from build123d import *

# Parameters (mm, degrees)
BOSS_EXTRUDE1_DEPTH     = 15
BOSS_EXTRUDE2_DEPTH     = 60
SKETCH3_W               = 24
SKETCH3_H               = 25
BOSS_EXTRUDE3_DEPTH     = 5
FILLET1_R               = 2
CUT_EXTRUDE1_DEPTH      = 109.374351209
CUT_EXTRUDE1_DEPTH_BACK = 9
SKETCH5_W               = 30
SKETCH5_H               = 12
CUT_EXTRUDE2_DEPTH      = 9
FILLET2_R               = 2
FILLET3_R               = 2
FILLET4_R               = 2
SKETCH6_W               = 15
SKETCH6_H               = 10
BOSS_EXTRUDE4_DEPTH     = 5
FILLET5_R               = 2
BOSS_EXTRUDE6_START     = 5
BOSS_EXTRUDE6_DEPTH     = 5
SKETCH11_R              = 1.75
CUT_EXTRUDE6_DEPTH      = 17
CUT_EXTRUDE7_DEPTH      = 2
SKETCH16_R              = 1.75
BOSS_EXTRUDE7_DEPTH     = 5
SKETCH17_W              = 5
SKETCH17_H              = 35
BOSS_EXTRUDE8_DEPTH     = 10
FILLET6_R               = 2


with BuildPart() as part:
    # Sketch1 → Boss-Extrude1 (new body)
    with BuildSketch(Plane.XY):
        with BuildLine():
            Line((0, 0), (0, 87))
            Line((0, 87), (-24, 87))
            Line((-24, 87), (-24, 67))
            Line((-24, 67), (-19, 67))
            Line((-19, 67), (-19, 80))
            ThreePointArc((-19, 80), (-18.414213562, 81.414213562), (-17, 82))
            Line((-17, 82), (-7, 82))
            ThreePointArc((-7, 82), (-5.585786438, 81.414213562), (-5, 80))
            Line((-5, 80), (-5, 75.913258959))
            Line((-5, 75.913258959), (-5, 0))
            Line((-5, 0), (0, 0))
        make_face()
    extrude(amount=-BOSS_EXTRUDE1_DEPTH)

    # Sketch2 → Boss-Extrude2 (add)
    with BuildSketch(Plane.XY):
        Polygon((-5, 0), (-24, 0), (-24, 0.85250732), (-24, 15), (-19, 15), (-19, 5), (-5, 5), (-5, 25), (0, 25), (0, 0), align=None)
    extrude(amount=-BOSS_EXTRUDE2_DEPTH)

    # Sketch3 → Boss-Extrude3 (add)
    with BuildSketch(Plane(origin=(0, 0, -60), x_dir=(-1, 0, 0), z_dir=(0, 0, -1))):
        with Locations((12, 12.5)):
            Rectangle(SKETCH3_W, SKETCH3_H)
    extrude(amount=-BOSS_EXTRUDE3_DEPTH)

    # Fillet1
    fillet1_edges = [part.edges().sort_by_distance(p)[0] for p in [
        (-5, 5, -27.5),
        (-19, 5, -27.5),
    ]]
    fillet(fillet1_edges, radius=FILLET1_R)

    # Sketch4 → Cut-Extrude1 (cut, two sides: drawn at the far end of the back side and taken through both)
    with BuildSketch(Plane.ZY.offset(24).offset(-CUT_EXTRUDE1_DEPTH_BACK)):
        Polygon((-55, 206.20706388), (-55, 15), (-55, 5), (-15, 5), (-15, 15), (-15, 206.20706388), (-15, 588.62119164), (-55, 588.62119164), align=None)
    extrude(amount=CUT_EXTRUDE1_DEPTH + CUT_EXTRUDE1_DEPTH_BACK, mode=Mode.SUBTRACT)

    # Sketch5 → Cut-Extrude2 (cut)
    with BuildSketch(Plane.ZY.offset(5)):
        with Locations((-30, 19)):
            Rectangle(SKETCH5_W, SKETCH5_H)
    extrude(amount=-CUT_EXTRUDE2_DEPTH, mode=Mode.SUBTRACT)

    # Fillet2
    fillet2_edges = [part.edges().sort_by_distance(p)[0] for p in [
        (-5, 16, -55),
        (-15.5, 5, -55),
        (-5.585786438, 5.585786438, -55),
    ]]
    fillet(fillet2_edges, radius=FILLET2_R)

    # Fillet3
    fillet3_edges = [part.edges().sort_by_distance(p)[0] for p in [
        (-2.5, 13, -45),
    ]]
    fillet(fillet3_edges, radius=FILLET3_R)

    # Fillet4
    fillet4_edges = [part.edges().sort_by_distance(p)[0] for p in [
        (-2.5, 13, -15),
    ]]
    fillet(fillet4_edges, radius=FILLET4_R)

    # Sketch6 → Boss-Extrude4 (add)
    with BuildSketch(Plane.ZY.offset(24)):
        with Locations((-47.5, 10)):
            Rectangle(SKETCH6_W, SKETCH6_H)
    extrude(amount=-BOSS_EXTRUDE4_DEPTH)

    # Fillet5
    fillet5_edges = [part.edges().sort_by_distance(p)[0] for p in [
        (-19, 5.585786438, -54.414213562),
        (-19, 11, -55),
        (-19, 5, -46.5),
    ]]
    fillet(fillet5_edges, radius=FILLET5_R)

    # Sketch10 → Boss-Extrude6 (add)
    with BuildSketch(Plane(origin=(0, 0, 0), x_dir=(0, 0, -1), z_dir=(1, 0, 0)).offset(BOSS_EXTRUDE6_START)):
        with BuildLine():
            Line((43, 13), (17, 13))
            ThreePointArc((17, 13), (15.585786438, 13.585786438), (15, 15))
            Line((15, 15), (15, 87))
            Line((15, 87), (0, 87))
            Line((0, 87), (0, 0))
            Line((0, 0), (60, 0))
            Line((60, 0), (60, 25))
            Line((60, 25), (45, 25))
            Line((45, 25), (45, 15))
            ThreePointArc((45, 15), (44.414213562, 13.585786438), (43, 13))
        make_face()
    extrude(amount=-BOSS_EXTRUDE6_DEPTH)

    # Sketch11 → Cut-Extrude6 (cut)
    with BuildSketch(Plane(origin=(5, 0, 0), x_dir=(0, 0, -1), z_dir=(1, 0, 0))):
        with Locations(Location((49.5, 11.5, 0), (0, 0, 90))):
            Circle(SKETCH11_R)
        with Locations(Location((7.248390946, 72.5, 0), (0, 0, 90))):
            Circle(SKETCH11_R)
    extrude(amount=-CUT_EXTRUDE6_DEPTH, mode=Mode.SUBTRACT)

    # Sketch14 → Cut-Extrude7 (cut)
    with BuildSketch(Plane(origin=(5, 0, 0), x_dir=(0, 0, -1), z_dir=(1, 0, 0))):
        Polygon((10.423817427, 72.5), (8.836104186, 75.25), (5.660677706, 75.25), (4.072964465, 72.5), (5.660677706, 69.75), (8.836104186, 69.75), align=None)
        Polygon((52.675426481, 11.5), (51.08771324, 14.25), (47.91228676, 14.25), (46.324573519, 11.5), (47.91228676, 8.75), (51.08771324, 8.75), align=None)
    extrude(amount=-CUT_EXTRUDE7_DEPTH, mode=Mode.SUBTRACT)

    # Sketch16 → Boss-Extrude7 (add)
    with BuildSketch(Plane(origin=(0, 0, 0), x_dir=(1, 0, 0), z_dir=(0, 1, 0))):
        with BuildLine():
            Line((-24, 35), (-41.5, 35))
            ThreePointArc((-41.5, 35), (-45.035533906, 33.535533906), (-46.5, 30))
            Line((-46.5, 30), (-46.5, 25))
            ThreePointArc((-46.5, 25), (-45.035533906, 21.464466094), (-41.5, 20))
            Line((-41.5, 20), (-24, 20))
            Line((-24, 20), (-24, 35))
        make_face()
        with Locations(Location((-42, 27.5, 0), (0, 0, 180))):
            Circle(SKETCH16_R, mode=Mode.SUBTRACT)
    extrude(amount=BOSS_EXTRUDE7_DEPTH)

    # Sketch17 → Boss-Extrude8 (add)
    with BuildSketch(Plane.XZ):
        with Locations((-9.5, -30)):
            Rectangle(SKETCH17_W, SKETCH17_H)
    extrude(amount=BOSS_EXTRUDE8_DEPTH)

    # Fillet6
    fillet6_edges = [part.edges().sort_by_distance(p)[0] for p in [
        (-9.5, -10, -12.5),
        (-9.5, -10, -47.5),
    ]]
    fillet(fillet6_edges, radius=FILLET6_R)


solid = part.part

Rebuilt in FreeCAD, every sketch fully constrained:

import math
import FreeCAD as App
import Part
import Sketcher
Q = App.Units.Quantity


def edges_at(feature, points):
    """Names of the edges that pass closest to the given points."""
    edges = feature.Shape.Edges
    near = lambda p: min(range(len(edges)), key=lambda i: edges[i].distToShape(Part.Vertex(*p))[0])
    return sorted({f"Edge{near(p) + 1}" for p in points})


def add_polygon(sketch, points):
    """Adds a closed chain of lines whose ends are joined by coincident constraints."""
    first, n = sketch.GeometryCount, len(points)
    for a, b in zip(points, points[1:] + points[:1]):
        sketch.addGeometry(Part.LineSegment(App.Vector(*a, 0), App.Vector(*b, 0)), False)
    for i in range(n):
        sketch.addConstraint(Sketcher.Constraint("Coincident", first + i, 2, first + (i + 1) % n, 1))

doc = App.newDocument("Part")
body = doc.addObject("PartDesign::Body", "Body")

# Sketch on XY plane
sketch1 = doc.addObject("Sketcher::SketchObject", "Sketch")
body.addObject(sketch1)
sketch1.AttachmentSupport = (doc.XY_Plane, [""])
sketch1.MapMode = "FlatFace"
sketch1.addGeometry([
    Part.LineSegment(App.Vector(0, 0, 0), App.Vector(0, 87, 0)),  # 0
    Part.LineSegment(App.Vector(0, 87, 0), App.Vector(-24, 87, 0)),  # 1
    Part.LineSegment(App.Vector(-24, 87, 0), App.Vector(-24, 67, 0)),  # 2
    Part.LineSegment(App.Vector(-24, 67, 0), App.Vector(-19, 67, 0)),  # 3
    Part.LineSegment(App.Vector(-19, 67, 0), App.Vector(-19, 80, 0)),  # 4
    Part.ArcOfCircle(Part.Circle(App.Vector(-17, 80, 0), App.Vector(0, 0, 1), 2), math.radians(90), math.radians(180)),  # 5
    Part.LineSegment(App.Vector(-17, 82, 0), App.Vector(-7, 82, 0)),  # 6
    Part.ArcOfCircle(Part.Circle(App.Vector(-7, 80, 0), App.Vector(0, 0, 1), 2), math.radians(0), math.radians(90)),  # 7
    Part.LineSegment(App.Vector(-5, 80, 0), App.Vector(-5, 0, 0)),  # 8
    Part.LineSegment(App.Vector(-5, 0, 0), App.Vector(0, 0, 0)),  # 9
], False)
sketch1.addConstraint([
    Sketcher.Constraint("Coincident", 0, 2, 1, 1),
    Sketcher.Constraint("Coincident", 1, 2, 2, 1),
    Sketcher.Constraint("Coincident", 2, 2, 3, 1),
    Sketcher.Constraint("Coincident", 3, 2, 4, 1),
    Sketcher.Constraint("Tangent", 4, 2, 5, 2),
    Sketcher.Constraint("Tangent", 5, 1, 6, 1),
    Sketcher.Constraint("Tangent", 6, 2, 7, 2),
    Sketcher.Constraint("Tangent", 7, 1, 8, 1),
    Sketcher.Constraint("Coincident", 8, 2, 9, 1),
    Sketcher.Constraint("Coincident", 9, 2, 0, 1),
    Sketcher.Constraint("Vertical", 0),
    Sketcher.Constraint("Horizontal", 1),
    Sketcher.Constraint("Vertical", 2),
    Sketcher.Constraint("Horizontal", 3),
    Sketcher.Constraint("Vertical", 4),
    Sketcher.Constraint("Horizontal", 6),
    Sketcher.Constraint("Vertical", 8),
    Sketcher.Constraint("Horizontal", 9),
    Sketcher.Constraint("Coincident", 9, 2, -1, 1),
    Sketcher.Constraint("Equal", 5, 7),
    Sketcher.Constraint("Equal", 3, 9),
    Sketcher.Constraint("Radius", 5, Q("2 mm")),
    Sketcher.Constraint("DistanceX", 1, 2, 1, 1, Q("24 mm")),
    Sketcher.Constraint("DistanceX", 3, 1, 3, 2, Q("5 mm")),
    Sketcher.Constraint("DistanceY", 0, 1, 0, 2, Q("87 mm")),
    Sketcher.Constraint("DistanceY", 2, 2, 2, 1, Q("20 mm")),
    Sketcher.Constraint("DistanceY", 4, 1, 4, 2, Q("13 mm")),
])
pad1 = doc.addObject("PartDesign::Pad", "Pad")
body.addObject(pad1)
pad1.Profile = sketch1
pad1.Length = 15
pad1.Reversed = True

# Sketch on XY plane
sketch2 = doc.addObject("Sketcher::SketchObject", "Sketch001")
body.addObject(sketch2)
sketch2.AttachmentSupport = (doc.XY_Plane, [""])
sketch2.MapMode = "FlatFace"
add_polygon(sketch2, [(-24, 0), (0, 0), (0, 25), (-5, 25), (-5, 5), (-19, 5), (-19, 15), (-24, 15)])  # lines 0-7
sketch2.addConstraint([
    Sketcher.Constraint("Horizontal", 0),
    Sketcher.Constraint("Vertical", 1),
    Sketcher.Constraint("Horizontal", 2),
    Sketcher.Constraint("Vertical", 3),
    Sketcher.Constraint("Horizontal", 4),
    Sketcher.Constraint("Vertical", 5),
    Sketcher.Constraint("Horizontal", 6),
    Sketcher.Constraint("Vertical", 7),
    Sketcher.Constraint("Coincident", 0, 2, -1, 1),
    Sketcher.Constraint("Equal", 2, 6),
    Sketcher.Constraint("DistanceX", 0, 1, 0, 2, Q("24 mm")),
    Sketcher.Constraint("DistanceX", 2, 2, 2, 1, Q("5 mm")),
    Sketcher.Constraint("DistanceY", 1, 1, 1, 2, Q("25 mm")),
    Sketcher.Constraint("DistanceY", 3, 2, 3, 1, Q("20 mm")),
    Sketcher.Constraint("DistanceY", 5, 1, 5, 2, Q("10 mm")),
])
pad2 = doc.addObject("PartDesign::Pad", "Pad001")
body.addObject(pad2)
pad2.Profile = sketch2
pad2.Length = 60
pad2.Reversed = True

# Sketch on XY plane
sketch3 = doc.addObject("Sketcher::SketchObject", "Sketch002")
body.addObject(sketch3)
sketch3.AttachmentSupport = (doc.XY_Plane, [""])
sketch3.MapMode = "FlatFace"
sketch3.AttachmentOffset = App.Placement(App.Vector(0, 0, -60), App.Rotation())
add_polygon(sketch3, [(0, 25), (0, 0), (-24, 0), (-24, 25)])  # lines 0-3
sketch3.addConstraint([
    Sketcher.Constraint("Vertical", 0),
    Sketcher.Constraint("Horizontal", 1),
    Sketcher.Constraint("Vertical", 2),
    Sketcher.Constraint("Horizontal", 3),
    Sketcher.Constraint("Coincident", 0, 2, -1, 1),
    Sketcher.Constraint("DistanceX", 1, 2, 1, 1, Q("24 mm")),
    Sketcher.Constraint("DistanceY", 0, 2, 0, 1, Q("25 mm")),
])
pad3 = doc.addObject("PartDesign::Pad", "Pad002")
body.addObject(pad3)
pad3.Profile = sketch3
pad3.Length = 5
doc.recompute()

fillet = doc.addObject("PartDesign::Fillet", "Fillet")
body.addObject(fillet)
fillet.Base = (pad3, edges_at(pad3, [(-5, 5, -27.5), (-19, 5, -27.5)]))
fillet.Radius = 2

# Sketch on YZ plane
sketch4 = doc.addObject("Sketcher::SketchObject", "Sketch003")
body.addObject(sketch4)
sketch4.AttachmentSupport = (doc.YZ_Plane, [""])
sketch4.MapMode = "FlatFace"
sketch4.AttachmentOffset = App.Placement(App.Vector(0, 0, -24), App.Rotation())
add_polygon(sketch4, [(5, -55), (5, -15), (589, -15), (589, -55)])  # lines 0-3
sketch4.addConstraint([
    Sketcher.Constraint("Vertical", 0),
    Sketcher.Constraint("Horizontal", 1),
    Sketcher.Constraint("Vertical", 2),
    Sketcher.Constraint("Horizontal", 3),
    Sketcher.Constraint("DistanceY", 0, 1, 0, 2, Q("40 mm")),
    Sketcher.Constraint("DistanceX", -1, 1, 0, 2, Q("5 mm")),
    Sketcher.Constraint("DistanceY", 0, 2, -1, 1, Q("15 mm")),
    Sketcher.Constraint("DistanceX", 1, 1, 1, 2, Q("583.621192 mm")),
])
pocket1 = doc.addObject("PartDesign::Pocket", "Pocket")
body.addObject(pocket1)
pocket1.Profile = sketch4
pocket1.Type = "TwoLengths"
pocket1.Length = 109.374351
pocket1.Length2 = 9

# Sketch on YZ plane
sketch5 = doc.addObject("Sketcher::SketchObject", "Sketch004")
body.addObject(sketch5)
sketch5.AttachmentSupport = (doc.YZ_Plane, [""])
sketch5.MapMode = "FlatFace"
sketch5.AttachmentOffset = App.Placement(App.Vector(0, 0, -5), App.Rotation())
add_polygon(sketch5, [(25, -45), (13, -45), (13, -15), (25, -15)])  # lines 0-3
sketch5.addConstraint([
    Sketcher.Constraint("Horizontal", 0),
    Sketcher.Constraint("Vertical", 1),
    Sketcher.Constraint("Horizontal", 2),
    Sketcher.Constraint("Vertical", 3),
    Sketcher.Constraint("DistanceX", 0, 2, 0, 1, Q("12 mm")),
    Sketcher.Constraint("DistanceY", 1, 1, 1, 2, Q("30 mm")),
    Sketcher.Constraint("DistanceX", -1, 1, 0, 2, Q("13 mm")),
    Sketcher.Constraint("DistanceY", 0, 2, -1, 1, Q("45 mm")),
])
pocket2 = doc.addObject("PartDesign::Pocket", "Pocket001")
body.addObject(pocket2)
pocket2.Profile = sketch5
pocket2.Length = 9
pocket2.Reversed = True
doc.recompute()

fillet2 = doc.addObject("PartDesign::Fillet", "Fillet001")
body.addObject(fillet2)
fillet2.Base = (pocket2, edges_at(pocket2, [(-5, 16, -55), (-15.5, 5, -55), (-5.586, 5.586, -55)]))
fillet2.Radius = 2
doc.recompute()

fillet3 = doc.addObject("PartDesign::Fillet", "Fillet002")
body.addObject(fillet3)
fillet3.Base = (fillet2, edges_at(fillet2, [(-2.5, 13, -45)]))
fillet3.Radius = 2
doc.recompute()

fillet4 = doc.addObject("PartDesign::Fillet", "Fillet003")
body.addObject(fillet4)
fillet4.Base = (fillet3, edges_at(fillet3, [(-2.5, 13, -15)]))
fillet4.Radius = 2

# Sketch on YZ plane
sketch6 = doc.addObject("Sketcher::SketchObject", "Sketch005")
body.addObject(sketch6)
sketch6.AttachmentSupport = (doc.YZ_Plane, [""])
sketch6.MapMode = "FlatFace"
sketch6.AttachmentOffset = App.Placement(App.Vector(0, 0, -24), App.Rotation())
add_polygon(sketch6, [(15, -55), (5, -55), (5, -40), (15, -40)])  # lines 0-3
sketch6.addConstraint([
    Sketcher.Constraint("Horizontal", 0),
    Sketcher.Constraint("Vertical", 1),
    Sketcher.Constraint("Horizontal", 2),
    Sketcher.Constraint("Vertical", 3),
    Sketcher.Constraint("DistanceX", 0, 2, 0, 1, Q("10 mm")),
    Sketcher.Constraint("DistanceY", 1, 1, 1, 2, Q("15 mm")),
    Sketcher.Constraint("DistanceX", -1, 1, 0, 2, Q("5 mm")),
    Sketcher.Constraint("DistanceY", 0, 2, -1, 1, Q("55 mm")),
])
pad4 = doc.addObject("PartDesign::Pad", "Pad003")
body.addObject(pad4)
pad4.Profile = sketch6
pad4.Length = 5
doc.recompute()

fillet5 = doc.addObject("PartDesign::Fillet", "Fillet004")
body.addObject(fillet5)
fillet5.Base = (pad4, edges_at(pad4, [(-19, 5.586, -54.414), (-19, 11, -55), (-19, 5, -46.5)]))
fillet5.Radius = 2

# Sketch on YZ plane
sketch7 = doc.addObject("Sketcher::SketchObject", "Sketch006")
body.addObject(sketch7)
sketch7.AttachmentSupport = (doc.YZ_Plane, [""])
sketch7.MapMode = "FlatFace"
sketch7.AttachmentOffset = App.Placement(App.Vector(0, 0, 5), App.Rotation())
sketch7.addGeometry([
    Part.LineSegment(App.Vector(13, -43, 0), App.Vector(13, -17, 0)),  # 0
    Part.ArcOfCircle(Part.Circle(App.Vector(15, -17, 0), App.Vector(0, 0, 1), 2), math.radians(90), math.radians(180)),  # 1
    Part.LineSegment(App.Vector(15, -15, 0), App.Vector(87, -15, 0)),  # 2
    Part.LineSegment(App.Vector(87, -15, 0), App.Vector(87, 0, 0)),  # 3
    Part.LineSegment(App.Vector(87, 0, 0), App.Vector(0, 0, 0)),  # 4
    Part.LineSegment(App.Vector(0, 0, 0), App.Vector(0, -60, 0)),  # 5
    Part.LineSegment(App.Vector(0, -60, 0), App.Vector(25, -60, 0)),  # 6
    Part.LineSegment(App.Vector(25, -60, 0), App.Vector(25, -45, 0)),  # 7
    Part.LineSegment(App.Vector(25, -45, 0), App.Vector(15, -45, 0)),  # 8
    Part.ArcOfCircle(Part.Circle(App.Vector(15, -43, 0), App.Vector(0, 0, 1), 2), math.radians(-180), math.radians(-90)),  # 9
], False)
sketch7.addConstraint([
    Sketcher.Constraint("Tangent", 0, 2, 1, 2),
    Sketcher.Constraint("Tangent", 1, 1, 2, 1),
    Sketcher.Constraint("Coincident", 2, 2, 3, 1),
    Sketcher.Constraint("Coincident", 3, 2, 4, 1),
    Sketcher.Constraint("Coincident", 4, 2, 5, 1),
    Sketcher.Constraint("Coincident", 5, 2, 6, 1),
    Sketcher.Constraint("Coincident", 6, 2, 7, 1),
    Sketcher.Constraint("Coincident", 7, 2, 8, 1),
    Sketcher.Constraint("Tangent", 8, 2, 9, 2),
    Sketcher.Constraint("Tangent", 9, 1, 0, 1),
    Sketcher.Constraint("Vertical", 0),
    Sketcher.Constraint("Horizontal", 2),
    Sketcher.Constraint("Vertical", 3),
    Sketcher.Constraint("Horizontal", 4),
    Sketcher.Constraint("Vertical", 5),
    Sketcher.Constraint("Horizontal", 6),
    Sketcher.Constraint("Vertical", 7),
    Sketcher.Constraint("Horizontal", 8),
    Sketcher.Constraint("Coincident", 4, 2, -1, 1),
    Sketcher.Constraint("Equal", 1, 9),
    Sketcher.Constraint("Equal", 3, 7),
    Sketcher.Constraint("Radius", 1, Q("2 mm")),
    Sketcher.Constraint("DistanceX", 2, 1, 2, 2, Q("72 mm")),
    Sketcher.Constraint("DistanceX", 4, 2, 4, 1, Q("87 mm")),
    Sketcher.Constraint("DistanceX", 6, 1, 6, 2, Q("25 mm")),
    Sketcher.Constraint("DistanceY", 0, 1, 0, 2, Q("26 mm")),
    Sketcher.Constraint("DistanceY", 3, 1, 3, 2, Q("15 mm")),
])
pad5 = doc.addObject("PartDesign::Pad", "Pad004")
body.addObject(pad5)
pad5.Profile = sketch7
pad5.Length = 5
pad5.Reversed = True

# Sketch on YZ plane
sketch8 = doc.addObject("Sketcher::SketchObject", "Sketch007")
body.addObject(sketch8)
sketch8.AttachmentSupport = (doc.YZ_Plane, [""])
sketch8.MapMode = "FlatFace"
sketch8.AttachmentOffset = App.Placement(App.Vector(0, 0, 5), App.Rotation())
sketch8.addGeometry([
    Part.Circle(App.Vector(11.5, -49.5, 0), App.Vector(0, 0, 1), 1.8),
    Part.Circle(App.Vector(72.5, -7.2, 0), App.Vector(0, 0, 1), 1.8),
], False)
sketch8.addConstraint([
    Sketcher.Constraint("Equal", 0, 1),
    Sketcher.Constraint("Diameter", 0, Q("3.5 mm")),
    Sketcher.Constraint("DistanceX", 0, 3, 1, 3, Q("61 mm")),
    Sketcher.Constraint("DistanceX", -1, 1, 0, 3, Q("11.5 mm")),
    Sketcher.Constraint("DistanceY", 0, 3, -1, 1, Q("49.5 mm")),
    Sketcher.Constraint("DistanceY", 1, 3, -1, 1, Q("7.248391 mm")),
])
pocket3 = doc.addObject("PartDesign::Pocket", "Pocket002")
body.addObject(pocket3)
pocket3.Profile = sketch8
pocket3.Length = 17

# Sketch on YZ plane
sketch9 = doc.addObject("Sketcher::SketchObject", "Sketch008")
body.addObject(sketch9)
sketch9.AttachmentSupport = (doc.YZ_Plane, [""])
sketch9.MapMode = "FlatFace"
sketch9.AttachmentOffset = App.Placement(App.Vector(0, 0, 5), App.Rotation())
add_polygon(sketch9, [(72.5, -10.4), (75.2, -8.8), (75.2, -5.7), (72.5, -4.1), (69.8, -5.7), (69.8, -8.8)])  # lines 0-5
add_polygon(sketch9, [(11.5, -52.7), (14.2, -51.1), (14.2, -47.9), (11.5, -46.3), (8.8, -47.9), (8.8, -51.1)])  # lines 6-11
sketch9.addConstraint([
    Sketcher.Constraint("Vertical", 1),
    Sketcher.Constraint("Vertical", 4),
    Sketcher.Constraint("Vertical", 7),
    Sketcher.Constraint("Vertical", 10),
    Sketcher.Constraint("Parallel", 0, 3),
    Sketcher.Constraint("Parallel", 2, 5),
    Sketcher.Constraint("Parallel", 3, 6),
    Sketcher.Constraint("Parallel", 5, 8),
    Sketcher.Constraint("Parallel", 6, 9),
    Sketcher.Constraint("Parallel", 8, 11),
    Sketcher.Constraint("Horizontal", 1, 2, 3, 2),
    Sketcher.Constraint("Horizontal", 0, 2, 4, 2),
    Sketcher.Constraint("Horizontal", 7, 2, 9, 2),
    Sketcher.Constraint("Horizontal", 6, 2, 10, 2),
    Sketcher.Constraint("Vertical", 2, 2, 5, 2),
    Sketcher.Constraint("Equal", 4, 7),
    Sketcher.Constraint("Equal", 5, 6),
    Sketcher.Constraint("Angle", 0, Q("30 deg")),
    Sketcher.Constraint("DistanceX", 6, 2, 0, 2, Q("61 mm")),
    Sketcher.Constraint("DistanceX", -1, 1, 2, 2, Q("72.5 mm")),
    Sketcher.Constraint("DistanceX", 3, 2, 1, 2, Q("5.5 mm")),
    Sketcher.Constraint("DistanceY", 1, 1, 1, 2, Q("3.175426 mm")),
    Sketcher.Constraint("DistanceY", 6, 2, 4, 2, Q("42.251609 mm")),
    Sketcher.Constraint("DistanceY", 0, 2, -1, 1, Q("8.836104 mm")),
])
pocket4 = doc.addObject("PartDesign::Pocket", "Pocket003")
body.addObject(pocket4)
pocket4.Profile = sketch9
pocket4.Length = 2

# Sketch on XZ plane
sketch10 = doc.addObject("Sketcher::SketchObject", "Sketch009")
body.addObject(sketch10)
sketch10.AttachmentSupport = (doc.XZ_Plane, [""])
sketch10.MapMode = "FlatFace"
sketch10.addGeometry([
    Part.LineSegment(App.Vector(-24, -35, 0), App.Vector(-41.5, -35, 0)),  # 0
    Part.ArcOfCircle(Part.Circle(App.Vector(-41.5, -30, 0), App.Vector(0, 0, 1), 5), math.radians(180), math.radians(270)),  # 1
    Part.LineSegment(App.Vector(-46.5, -30, 0), App.Vector(-46.5, -25, 0)),  # 2
    Part.ArcOfCircle(Part.Circle(App.Vector(-41.5, -25, 0), App.Vector(0, 0, 1), 5), math.radians(90), math.radians(180)),  # 3
    Part.LineSegment(App.Vector(-41.5, -20, 0), App.Vector(-24, -20, 0)),  # 4
    Part.LineSegment(App.Vector(-24, -20, 0), App.Vector(-24, -35, 0)),  # 5
    Part.Circle(App.Vector(-42, -27.5, 0), App.Vector(0, 0, 1), 1.8),  # 6
], False)
sketch10.addConstraint([
    Sketcher.Constraint("Tangent", 0, 2, 1, 2),
    Sketcher.Constraint("Tangent", 1, 1, 2, 1),
    Sketcher.Constraint("Tangent", 2, 2, 3, 2),
    Sketcher.Constraint("Tangent", 3, 1, 4, 1),
    Sketcher.Constraint("Coincident", 4, 2, 5, 1),
    Sketcher.Constraint("Coincident", 5, 2, 0, 1),
    Sketcher.Constraint("Horizontal", 0),
    Sketcher.Constraint("Vertical", 2),
    Sketcher.Constraint("Horizontal", 4),
    Sketcher.Constraint("Vertical", 5),
    Sketcher.Constraint("Equal", 1, 3),
    Sketcher.Constraint("Radius", 1, Q("5 mm")),
    Sketcher.Constraint("Diameter", 6, Q("3.5 mm")),
    Sketcher.Constraint("DistanceY", 2, 1, 2, 2, Q("5 mm")),
    Sketcher.Constraint("DistanceX", 0, 2, 0, 1, Q("17.5 mm")),
    Sketcher.Constraint("DistanceY", 1, 3, -1, 1, Q("30 mm")),
    Sketcher.Constraint("DistanceX", 6, 3, -1, 1, Q("42 mm")),
    Sketcher.Constraint("DistanceX", 4, 2, -1, 1, Q("24 mm")),
    Sketcher.Constraint("DistanceY", 6, 3, -1, 1, Q("27.5 mm")),
])
pad6 = doc.addObject("PartDesign::Pad", "Pad005")
body.addObject(pad6)
pad6.Profile = sketch10
pad6.Length = 5
pad6.Reversed = True

# Sketch on XZ plane
sketch11 = doc.addObject("Sketcher::SketchObject", "Sketch010")
body.addObject(sketch11)
sketch11.AttachmentSupport = (doc.XZ_Plane, [""])
sketch11.MapMode = "FlatFace"
add_polygon(sketch11, [(-12, -12), (-12, -48), (-7, -48), (-7, -12)])  # lines 0-3
sketch11.addConstraint([
    Sketcher.Constraint("Vertical", 0),
    Sketcher.Constraint("Horizontal", 1),
    Sketcher.Constraint("Vertical", 2),
    Sketcher.Constraint("Horizontal", 3),
    Sketcher.Constraint("DistanceX", 1, 1, 1, 2, Q("5 mm")),
    Sketcher.Constraint("DistanceY", 0, 2, 0, 1, Q("35 mm")),
    Sketcher.Constraint("DistanceX", 0, 2, -1, 1, Q("12 mm")),
    Sketcher.Constraint("DistanceY", 0, 2, -1, 1, Q("47.5 mm")),
])
pad7 = doc.addObject("PartDesign::Pad", "Pad006")
body.addObject(pad7)
pad7.Profile = sketch11
pad7.Length = 10
doc.recompute()

fillet6 = doc.addObject("PartDesign::Fillet", "Fillet005")
body.addObject(fillet6)
fillet6.Base = (pad7, edges_at(pad7, [(-9.5, -10, -12.5), (-9.5, -10, -47.5)]))
fillet6.Radius = 2

doc.recompute()
